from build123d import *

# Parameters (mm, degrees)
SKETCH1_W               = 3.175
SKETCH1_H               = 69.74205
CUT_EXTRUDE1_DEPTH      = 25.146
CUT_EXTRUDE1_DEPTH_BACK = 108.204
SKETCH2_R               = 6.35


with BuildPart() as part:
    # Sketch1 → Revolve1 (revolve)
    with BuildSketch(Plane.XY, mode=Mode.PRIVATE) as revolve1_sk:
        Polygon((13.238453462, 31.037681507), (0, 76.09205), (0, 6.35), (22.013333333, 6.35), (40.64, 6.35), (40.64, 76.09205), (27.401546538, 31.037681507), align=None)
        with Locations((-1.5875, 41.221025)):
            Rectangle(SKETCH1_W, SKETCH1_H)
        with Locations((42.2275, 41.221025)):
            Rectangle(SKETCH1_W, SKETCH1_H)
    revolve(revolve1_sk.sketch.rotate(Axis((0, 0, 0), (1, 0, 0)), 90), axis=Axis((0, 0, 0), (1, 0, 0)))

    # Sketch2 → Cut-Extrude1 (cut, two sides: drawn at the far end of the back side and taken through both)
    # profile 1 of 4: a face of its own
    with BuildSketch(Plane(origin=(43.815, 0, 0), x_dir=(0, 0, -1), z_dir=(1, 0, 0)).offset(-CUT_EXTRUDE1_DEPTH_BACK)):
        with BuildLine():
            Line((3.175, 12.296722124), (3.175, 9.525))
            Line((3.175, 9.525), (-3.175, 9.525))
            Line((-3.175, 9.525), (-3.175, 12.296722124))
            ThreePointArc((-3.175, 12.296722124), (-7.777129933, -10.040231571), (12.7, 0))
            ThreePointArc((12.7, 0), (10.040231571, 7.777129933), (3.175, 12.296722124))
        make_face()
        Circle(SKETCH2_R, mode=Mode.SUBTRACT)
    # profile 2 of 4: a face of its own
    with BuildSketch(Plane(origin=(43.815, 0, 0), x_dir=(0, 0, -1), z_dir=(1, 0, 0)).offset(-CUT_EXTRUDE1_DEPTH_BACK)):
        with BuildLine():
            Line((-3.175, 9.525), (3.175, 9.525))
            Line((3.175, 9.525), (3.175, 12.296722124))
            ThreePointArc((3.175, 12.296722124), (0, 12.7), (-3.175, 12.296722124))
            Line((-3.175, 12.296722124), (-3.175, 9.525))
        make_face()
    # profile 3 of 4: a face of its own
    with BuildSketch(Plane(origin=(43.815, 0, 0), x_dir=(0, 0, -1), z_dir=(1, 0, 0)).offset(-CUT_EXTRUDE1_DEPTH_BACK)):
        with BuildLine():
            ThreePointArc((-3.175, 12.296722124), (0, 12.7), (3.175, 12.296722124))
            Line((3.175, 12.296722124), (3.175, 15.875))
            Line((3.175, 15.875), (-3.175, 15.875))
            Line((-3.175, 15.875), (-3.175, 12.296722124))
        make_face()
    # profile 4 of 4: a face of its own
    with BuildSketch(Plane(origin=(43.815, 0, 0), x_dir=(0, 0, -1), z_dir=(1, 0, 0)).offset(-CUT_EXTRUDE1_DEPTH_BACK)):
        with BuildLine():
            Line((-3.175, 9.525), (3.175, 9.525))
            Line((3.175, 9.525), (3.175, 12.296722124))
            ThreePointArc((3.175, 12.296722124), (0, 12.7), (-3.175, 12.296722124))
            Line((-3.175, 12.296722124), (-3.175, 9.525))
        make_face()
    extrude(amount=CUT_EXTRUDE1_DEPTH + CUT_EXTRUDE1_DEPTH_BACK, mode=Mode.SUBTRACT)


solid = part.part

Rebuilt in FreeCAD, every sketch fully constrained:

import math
import FreeCAD as App
import Part
import Sketcher
Q = App.Units.Quantity


def add_polygon(sketch, points):
    """Adds a closed chain of lines whose ends are joined by coincident constraints."""
    first, n = sketch.GeometryCount, len(points)
    for a, b in zip(points, points[1:] + points[:1]):
        sketch.addGeometry(Part.LineSegment(App.Vector(*a, 0), App.Vector(*b, 0)), False)
    for i in range(n):
        sketch.addConstraint(Sketcher.Constraint("Coincident", first + i, 2, first + (i + 1) % n, 1))

doc = App.newDocument("Part")
body = doc.addObject("PartDesign::Body", "Body")

# Sketch on XY plane
sketch1 = body.newObject("Sketcher::SketchObject", "Sketch")
sketch1.AttachmentSupport = (doc.getObject("XY_Plane"), [""])
sketch1.MapMode = "FlatFace"
add_polygon(sketch1, [(13.2, 31), (0, 76.1), (-3.2, 76.1), (-3.2, 6.3), (43.8, 6.3), (43.8, 76.1), (40.6, 76.1), (27.4, 31)])  # lines 0-7
sketch1.addConstraint([
    Sketcher.Constraint("Horizontal", 1),
    Sketcher.Constraint("Vertical", 2),
    Sketcher.Constraint("Horizontal", 3),
    Sketcher.Constraint("Vertical", 4),
    Sketcher.Constraint("Horizontal", 5),
    Sketcher.Constraint("Horizontal", 7),
    Sketcher.Constraint("PointOnObject", 0, 2, -2),
    Sketcher.Constraint("Horizontal", 1, 2, 4, 2),
    Sketcher.Constraint("Equal", 1, 5),
    Sketcher.Constraint("Equal", 0, 6),
    Sketcher.Constraint("DistanceX", 3, 1, 3, 2, Q("1.85 in")),
    Sketcher.Constraint("DistanceX", -1, 1, 5, 2, Q("1.6 in")),
    Sketcher.Constraint("DistanceY", -1, 1, 2, 2, Q("0.25 in")),
    Sketcher.Constraint("DistanceY", 2, 2, 2, 1, 69.74205),
    Sketcher.Constraint("DistanceX", 7, 2, 7, 1, 14.163093),
    Sketcher.Constraint("DistanceY", -1, 1, 6, 2, 31.037682),
])
revolution = body.newObject("PartDesign::Revolution", "Revolution")
revolution.Profile = sketch1
revolution.ReferenceAxis = (sketch1, ["H_Axis"])
revolution.Angle = 360

# Sketch on YZ plane
sketch2 = body.newObject("Sketcher::SketchObject", "Sketch001")
sketch2.AttachmentSupport = (doc.getObject("YZ_Plane"), [""])
sketch2.MapMode = "FlatFace"
sketch2.AttachmentOffset = App.Placement(App.Vector(0, 0, 1.725 * 25.4), App.Rotation())
sketch2.addGeometry([
    Part.ArcOfCircle(Part.Circle(App.Vector(0, 0, 0), App.Vector(0, 0, 1), 12.7), math.radians(-90), math.radians(-14)),  # 0
    Part.LineSegment(App.Vector(12.3, -3.2, 0), App.Vector(15.9, -3.2, 0)),  # 1
    Part.LineSegment(App.Vector(15.9, -3.2, 0), App.Vector(15.9, 3.2, 0)),  # 2
    Part.LineSegment(App.Vector(15.9, 3.2, 0), App.Vector(12.3, 3.2, 0)),  # 3
    Part.ArcOfCircle(Part.Circle(App.Vector(0, 0, 0), App.Vector(0, 0, 1), 12.7), math.radians(14), math.radians(270)),  # 4
    Part.Circle(App.Vector(0, 0, 0), App.Vector(0, 0, 1), 6.3),  # 5
], False)
sketch2.addConstraint([
    Sketcher.Constraint("Coincident", 0, 2, 1, 1),
    Sketcher.Constraint("Coincident", 1, 2, 2, 1),
    Sketcher.Constraint("Coincident", 2, 2, 3, 1),
    Sketcher.Constraint("Coincident", 3, 2, 4, 1),
    Sketcher.Constraint("Tangent", 4, 2, 0, 1),
    Sketcher.Constraint("Horizontal", 1),
    Sketcher.Constraint("Vertical", 2),
    Sketcher.Constraint("Horizontal", 3),
    Sketcher.Constraint("Coincident", 0, 3, -1, 1),
    Sketcher.Constraint("Coincident", 5, 3, -1, 1),
    Sketcher.Constraint("Equal", 0, 4),
    Sketcher.Constraint("PointOnObject", 4, 2, -2),
    Sketcher.Constraint("Vertical", 0, 2, 3, 2),
    Sketcher.Constraint("Diameter", 5, Q("0.5 in")),
    Sketcher.Constraint("Radius", 0, Q("0.5 in")),
    Sketcher.Constraint("DistanceY", 2, 1, 2, 2, Q("0.25 in")),
    Sketcher.Constraint("DistanceX", -1, 1, 1, 2, Q("0.625 in")),
])
pocket1 = body.newObject("PartDesign::Pocket", "Pocket")
pocket1.Profile = sketch2
pocket1.Type = "ThroughAll"
pocket1.Midplane = True

doc.recompute()
